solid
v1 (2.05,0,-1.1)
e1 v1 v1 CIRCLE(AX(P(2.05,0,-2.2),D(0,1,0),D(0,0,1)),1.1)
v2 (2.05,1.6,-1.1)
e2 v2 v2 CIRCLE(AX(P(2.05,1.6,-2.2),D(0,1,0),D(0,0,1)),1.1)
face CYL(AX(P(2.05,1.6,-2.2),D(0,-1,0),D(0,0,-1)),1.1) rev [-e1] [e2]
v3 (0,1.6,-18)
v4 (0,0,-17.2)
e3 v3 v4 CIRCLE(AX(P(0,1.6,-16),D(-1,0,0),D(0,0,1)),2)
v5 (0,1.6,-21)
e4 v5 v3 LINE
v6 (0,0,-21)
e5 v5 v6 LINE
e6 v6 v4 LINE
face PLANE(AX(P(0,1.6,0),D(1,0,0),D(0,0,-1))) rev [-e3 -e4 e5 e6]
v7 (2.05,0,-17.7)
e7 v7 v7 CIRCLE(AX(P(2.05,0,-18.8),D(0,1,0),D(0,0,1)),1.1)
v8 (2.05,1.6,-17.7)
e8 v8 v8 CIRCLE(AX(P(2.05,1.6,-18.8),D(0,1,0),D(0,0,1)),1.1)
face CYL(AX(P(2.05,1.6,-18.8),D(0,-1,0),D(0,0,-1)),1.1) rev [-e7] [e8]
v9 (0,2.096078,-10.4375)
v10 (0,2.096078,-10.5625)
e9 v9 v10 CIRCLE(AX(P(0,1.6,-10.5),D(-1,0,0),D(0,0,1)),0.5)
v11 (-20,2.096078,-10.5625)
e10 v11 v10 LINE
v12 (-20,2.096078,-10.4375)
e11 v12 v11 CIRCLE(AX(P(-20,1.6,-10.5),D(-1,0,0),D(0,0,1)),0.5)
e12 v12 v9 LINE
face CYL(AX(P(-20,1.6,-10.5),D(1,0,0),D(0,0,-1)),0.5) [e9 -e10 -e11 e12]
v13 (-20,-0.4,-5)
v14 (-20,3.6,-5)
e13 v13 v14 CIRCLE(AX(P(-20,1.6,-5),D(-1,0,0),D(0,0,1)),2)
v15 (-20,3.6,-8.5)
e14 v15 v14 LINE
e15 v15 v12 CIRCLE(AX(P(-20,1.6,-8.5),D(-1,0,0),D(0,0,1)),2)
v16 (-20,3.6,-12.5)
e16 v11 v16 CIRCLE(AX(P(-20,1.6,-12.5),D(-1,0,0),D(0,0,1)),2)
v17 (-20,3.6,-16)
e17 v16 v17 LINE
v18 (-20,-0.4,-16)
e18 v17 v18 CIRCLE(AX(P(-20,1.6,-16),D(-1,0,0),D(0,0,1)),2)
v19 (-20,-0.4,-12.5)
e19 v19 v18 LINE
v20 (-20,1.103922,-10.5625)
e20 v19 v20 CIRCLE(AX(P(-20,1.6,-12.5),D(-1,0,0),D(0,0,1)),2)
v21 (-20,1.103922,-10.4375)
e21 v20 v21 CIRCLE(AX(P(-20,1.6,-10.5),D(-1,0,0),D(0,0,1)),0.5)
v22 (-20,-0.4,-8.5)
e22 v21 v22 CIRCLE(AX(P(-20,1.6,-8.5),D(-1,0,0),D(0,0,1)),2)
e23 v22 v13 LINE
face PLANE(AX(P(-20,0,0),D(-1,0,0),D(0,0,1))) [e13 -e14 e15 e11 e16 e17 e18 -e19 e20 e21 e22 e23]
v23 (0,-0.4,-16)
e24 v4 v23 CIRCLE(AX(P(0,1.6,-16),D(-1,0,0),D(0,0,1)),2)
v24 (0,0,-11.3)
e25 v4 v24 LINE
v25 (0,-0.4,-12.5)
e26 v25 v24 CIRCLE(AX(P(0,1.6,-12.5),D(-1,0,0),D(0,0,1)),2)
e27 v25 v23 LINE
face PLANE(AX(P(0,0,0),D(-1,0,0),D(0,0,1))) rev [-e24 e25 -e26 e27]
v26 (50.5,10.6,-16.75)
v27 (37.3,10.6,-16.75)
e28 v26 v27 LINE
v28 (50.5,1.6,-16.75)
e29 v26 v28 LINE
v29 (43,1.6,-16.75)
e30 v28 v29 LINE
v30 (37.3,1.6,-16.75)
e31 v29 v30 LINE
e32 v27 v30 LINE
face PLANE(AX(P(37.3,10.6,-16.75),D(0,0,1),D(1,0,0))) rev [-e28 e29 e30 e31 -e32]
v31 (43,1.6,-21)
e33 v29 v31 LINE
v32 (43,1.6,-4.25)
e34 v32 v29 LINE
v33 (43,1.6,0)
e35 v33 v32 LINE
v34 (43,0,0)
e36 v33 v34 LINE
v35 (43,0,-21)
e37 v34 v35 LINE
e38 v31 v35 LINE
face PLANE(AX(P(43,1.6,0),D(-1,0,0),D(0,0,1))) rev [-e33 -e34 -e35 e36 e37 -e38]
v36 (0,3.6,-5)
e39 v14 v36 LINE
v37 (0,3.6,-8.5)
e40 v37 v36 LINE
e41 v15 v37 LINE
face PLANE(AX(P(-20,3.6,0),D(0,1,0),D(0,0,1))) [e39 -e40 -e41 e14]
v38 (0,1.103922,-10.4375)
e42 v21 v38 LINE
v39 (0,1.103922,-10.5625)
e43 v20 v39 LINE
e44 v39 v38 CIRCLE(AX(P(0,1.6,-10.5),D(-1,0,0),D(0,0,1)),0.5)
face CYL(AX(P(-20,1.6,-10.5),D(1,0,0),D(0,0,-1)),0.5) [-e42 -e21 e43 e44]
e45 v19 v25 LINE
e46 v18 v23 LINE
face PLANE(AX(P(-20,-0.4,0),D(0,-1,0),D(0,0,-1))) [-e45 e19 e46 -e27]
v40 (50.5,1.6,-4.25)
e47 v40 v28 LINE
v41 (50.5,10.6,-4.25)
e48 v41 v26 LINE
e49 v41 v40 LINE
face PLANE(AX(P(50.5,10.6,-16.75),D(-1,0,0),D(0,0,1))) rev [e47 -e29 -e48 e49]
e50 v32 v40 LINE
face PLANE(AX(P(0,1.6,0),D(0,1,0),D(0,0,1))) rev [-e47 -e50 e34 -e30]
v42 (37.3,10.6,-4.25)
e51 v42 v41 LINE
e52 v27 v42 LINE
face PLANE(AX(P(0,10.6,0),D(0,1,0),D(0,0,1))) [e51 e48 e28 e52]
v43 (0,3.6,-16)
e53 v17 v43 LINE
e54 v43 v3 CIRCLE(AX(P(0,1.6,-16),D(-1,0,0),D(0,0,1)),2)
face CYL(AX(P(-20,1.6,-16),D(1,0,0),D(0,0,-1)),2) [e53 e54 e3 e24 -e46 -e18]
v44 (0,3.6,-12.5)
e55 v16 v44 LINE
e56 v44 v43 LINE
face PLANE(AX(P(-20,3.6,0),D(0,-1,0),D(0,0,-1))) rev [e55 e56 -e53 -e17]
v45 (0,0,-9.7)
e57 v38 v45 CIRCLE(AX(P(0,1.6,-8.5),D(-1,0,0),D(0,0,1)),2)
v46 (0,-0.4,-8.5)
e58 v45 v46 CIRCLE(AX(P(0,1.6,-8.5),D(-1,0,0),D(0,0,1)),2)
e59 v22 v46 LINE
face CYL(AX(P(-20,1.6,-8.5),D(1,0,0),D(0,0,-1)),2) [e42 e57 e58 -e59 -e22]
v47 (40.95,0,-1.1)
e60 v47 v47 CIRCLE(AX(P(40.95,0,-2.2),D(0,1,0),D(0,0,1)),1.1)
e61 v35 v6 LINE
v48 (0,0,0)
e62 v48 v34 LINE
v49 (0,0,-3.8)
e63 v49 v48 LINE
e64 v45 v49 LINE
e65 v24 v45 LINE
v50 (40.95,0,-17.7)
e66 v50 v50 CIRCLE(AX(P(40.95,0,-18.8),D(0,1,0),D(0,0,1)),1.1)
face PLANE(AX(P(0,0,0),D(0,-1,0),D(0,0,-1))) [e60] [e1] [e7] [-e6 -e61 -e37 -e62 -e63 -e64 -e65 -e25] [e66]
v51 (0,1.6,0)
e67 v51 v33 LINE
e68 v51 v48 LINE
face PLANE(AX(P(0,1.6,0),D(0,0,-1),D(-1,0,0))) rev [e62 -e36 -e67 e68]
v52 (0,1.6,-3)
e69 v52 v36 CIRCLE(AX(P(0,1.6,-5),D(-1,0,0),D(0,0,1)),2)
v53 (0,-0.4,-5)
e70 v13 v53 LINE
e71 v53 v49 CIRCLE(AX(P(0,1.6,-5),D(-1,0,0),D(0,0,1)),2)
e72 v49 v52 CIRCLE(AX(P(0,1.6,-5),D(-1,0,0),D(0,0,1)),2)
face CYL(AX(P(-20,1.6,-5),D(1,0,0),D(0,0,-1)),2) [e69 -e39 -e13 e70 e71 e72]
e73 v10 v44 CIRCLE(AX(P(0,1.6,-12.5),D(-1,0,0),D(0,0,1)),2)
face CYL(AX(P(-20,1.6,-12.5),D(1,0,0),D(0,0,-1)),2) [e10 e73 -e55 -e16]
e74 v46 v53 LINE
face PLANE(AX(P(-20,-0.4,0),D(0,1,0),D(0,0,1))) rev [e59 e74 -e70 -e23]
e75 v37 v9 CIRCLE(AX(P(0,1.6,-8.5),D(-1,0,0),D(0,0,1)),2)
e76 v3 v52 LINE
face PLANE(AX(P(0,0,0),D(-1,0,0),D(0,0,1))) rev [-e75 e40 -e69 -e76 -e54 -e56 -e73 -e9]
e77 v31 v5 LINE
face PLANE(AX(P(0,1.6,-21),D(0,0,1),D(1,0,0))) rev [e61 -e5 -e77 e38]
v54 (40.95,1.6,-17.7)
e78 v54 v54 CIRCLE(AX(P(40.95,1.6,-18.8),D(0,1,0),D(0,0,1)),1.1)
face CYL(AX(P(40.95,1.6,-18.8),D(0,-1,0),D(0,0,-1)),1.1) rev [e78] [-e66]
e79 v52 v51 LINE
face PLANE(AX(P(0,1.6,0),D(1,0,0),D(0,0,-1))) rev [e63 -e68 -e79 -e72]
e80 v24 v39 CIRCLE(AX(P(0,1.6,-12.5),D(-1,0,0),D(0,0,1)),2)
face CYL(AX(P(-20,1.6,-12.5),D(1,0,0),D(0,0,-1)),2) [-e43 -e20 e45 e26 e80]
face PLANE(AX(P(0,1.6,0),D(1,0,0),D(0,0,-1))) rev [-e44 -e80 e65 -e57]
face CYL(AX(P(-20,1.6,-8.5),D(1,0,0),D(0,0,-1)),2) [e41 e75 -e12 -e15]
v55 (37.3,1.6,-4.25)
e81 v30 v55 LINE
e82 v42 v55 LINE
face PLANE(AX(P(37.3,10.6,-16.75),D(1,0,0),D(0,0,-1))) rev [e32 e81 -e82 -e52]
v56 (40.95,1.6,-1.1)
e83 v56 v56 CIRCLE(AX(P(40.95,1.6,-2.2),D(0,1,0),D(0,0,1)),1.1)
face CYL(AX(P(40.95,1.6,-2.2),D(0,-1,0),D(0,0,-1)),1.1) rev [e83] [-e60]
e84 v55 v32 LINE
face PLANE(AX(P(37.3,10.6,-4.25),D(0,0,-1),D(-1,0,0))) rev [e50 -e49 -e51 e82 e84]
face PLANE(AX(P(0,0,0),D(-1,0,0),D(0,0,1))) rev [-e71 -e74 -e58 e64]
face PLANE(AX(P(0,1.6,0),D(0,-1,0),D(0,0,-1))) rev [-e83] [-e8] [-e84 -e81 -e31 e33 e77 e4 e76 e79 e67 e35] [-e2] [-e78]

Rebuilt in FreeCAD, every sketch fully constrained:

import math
import FreeCAD as App
import Part
import Sketcher
from FreeCAD import Vector

doc = App.newDocument("Part")
body = doc.addObject("PartDesign::Body", "Body")

sketch1 = doc.addObject("Sketcher::SketchObject", "Sketch")
body.addObject(sketch1)
sketch1.AttachmentSupport = (doc.XZ_Plane, [""])
sketch1.MapMode = "FlatFace"
sketch1.addGeometry([
    Part.LineSegment(Vector(0, -21, 0), Vector(0, 0, 0)),
    Part.LineSegment(Vector(0, 0, 0), Vector(43, 0, 0)),
    Part.LineSegment(Vector(43, 0, 0), Vector(43, -21, 0)),
    Part.LineSegment(Vector(43, -21, 0), Vector(0, -21, 0)),
    Part.Circle(Vector(2, -2.2, 0), Vector(0, 0, 1), 1.1),
    Part.Circle(Vector(41, -2.2, 0), Vector(0, 0, 1), 1.1),
    Part.Circle(Vector(2, -18.8, 0), Vector(0, 0, 1), 1.1),
    Part.Circle(Vector(41, -18.8, 0), Vector(0, 0, 1), 1.1),
], False)
sketch1.addConstraint([
    Sketcher.Constraint("Coincident", 0, 2, 1, 1),
    Sketcher.Constraint("Coincident", 1, 2, 2, 1),
    Sketcher.Constraint("Coincident", 2, 2, 3, 1),
    Sketcher.Constraint("Coincident", 3, 2, 0, 1),
    Sketcher.Constraint("Vertical", 0),
    Sketcher.Constraint("Horizontal", 1),
    Sketcher.Constraint("Vertical", 2),
    Sketcher.Constraint("Horizontal", 3),
    Sketcher.Constraint("Coincident", 0, 2, -1, 1),
    Sketcher.Constraint("Equal", 4, 5),
    Sketcher.Constraint("Equal", 5, 6),
    Sketcher.Constraint("Equal", 6, 7),
    Sketcher.Constraint("Horizontal", 4, 3, 5, 3),
    Sketcher.Constraint("Horizontal", 6, 3, 7, 3),
    Sketcher.Constraint("Vertical", 4, 3, 6, 3),
    Sketcher.Constraint("Vertical", 5, 3, 7, 3),
    Sketcher.Constraint("Diameter", 4, 2.2),
    Sketcher.Constraint("DistanceX", 1, 1, 1, 2, 43.0),
    Sketcher.Constraint("DistanceY", 0, 1, 0, 2, 21.0),
    Sketcher.Constraint("DistanceY", 4, 3, -1, 1, 2.2),
    Sketcher.Constraint("DistanceY", 6, 3, -1, 1, 18.8),
    Sketcher.Constraint("DistanceX", 4, 3, 5, 3, 38.9),
    Sketcher.Constraint("DistanceX", -1, 1, 4, 3, 2.05),
])
pad1 = doc.addObject("PartDesign::Pad", "Pad")
body.addObject(pad1)
pad1.Profile = sketch1
pad1.Length = 1.6
pad1.Reversed = True

sketch2 = doc.addObject("Sketcher::SketchObject", "Sketch001")
body.addObject(sketch2)
sketch2.AttachmentSupport = (doc.YZ_Plane, [""])
sketch2.MapMode = "FlatFace"
sketch2.addGeometry([
    Part.ArcOfCircle(Part.Circle(Vector(1.6, -10.5, 0), Vector(0, 0, 1), 0.5), math.radians(172.82), math.radians(187.18)),
    Part.ArcOfCircle(Part.Circle(Vector(1.6, -8.5, 0), Vector(0, 0, 1), 2), math.radians(-143), math.radians(-104)),
    Part.ArcOfCircle(Part.Circle(Vector(1.6, -8.5, 0), Vector(0, 0, 1), 2), math.radians(-180), math.radians(-143)),
    Part.LineSegment(Vector(-0.4, -8.5, 0), Vector(-0.4, -5, 0)),
    Part.ArcOfCircle(Part.Circle(Vector(1.6, -5, 0), Vector(0, 0, 1), 2), math.radians(143), math.radians(180)),
    Part.ArcOfCircle(Part.Circle(Vector(1.6, -5, 0), Vector(0, 0, 1), 2), math.radians(90), math.radians(143)),
    Part.ArcOfCircle(Part.Circle(Vector(1.6, -5, 0), Vector(0, 0, 1), 2), math.radians(0), math.radians(90)),
    Part.LineSegment(Vector(3.6, -5, 0), Vector(3.6, -8.5, 0)),
    Part.ArcOfCircle(Part.Circle(Vector(1.6, -8.5, 0), Vector(0, 0, 1), 2), math.radians(-76), math.radians(0)),
    Part.ArcOfCircle(Part.Circle(Vector(1.6, -10.5, 0), Vector(0, 0, 1), 0.5), math.radians(-7.18), math.radians(7.18)),
    Part.ArcOfCircle(Part.Circle(Vector(1.6, -12.5, 0), Vector(0, 0, 1), 2), math.radians(0), math.radians(76)),
    Part.LineSegment(Vector(3.6, -12.5, 0), Vector(3.6, -16, 0)),
    Part.ArcOfCircle(Part.Circle(Vector(1.6, -16, 0), Vector(0, 0, 1), 2), math.radians(-90), math.radians(0)),
    Part.ArcOfCircle(Part.Circle(Vector(1.6, -16, 0), Vector(0, 0, 1), 2), math.radians(-143), math.radians(-90)),
    Part.ArcOfCircle(Part.Circle(Vector(1.6, -16, 0), Vector(0, 0, 1), 2), math.radians(-180), math.radians(-143)),
    Part.LineSegment(Vector(-0.4, -16, 0), Vector(-0.4, -12.5, 0)),
    Part.ArcOfCircle(Part.Circle(Vector(1.6, -12.5, 0), Vector(0, 0, 1), 2), math.radians(143), math.radians(180)),
    Part.ArcOfCircle(Part.Circle(Vector(1.6, -12.5, 0), Vector(0, 0, 1), 2), math.radians(104), math.radians(143)),
], False)
sketch2.addConstraint([
    Sketcher.Constraint("Coincident", 0, 1, 1, 2),
    Sketcher.Constraint("Tangent", 1, 1, 2, 2),
    Sketcher.Constraint("Tangent", 2, 1, 3, 1),
    Sketcher.Constraint("Tangent", 3, 2, 4, 2),
    Sketcher.Constraint("Tangent", 4, 1, 5, 2),
    Sketcher.Constraint("Tangent", 5, 1, 6, 2),
    Sketcher.Constraint("Tangent", 6, 1, 7, 1),
    Sketcher.Constraint("Tangent", 7, 2, 8, 2),
    Sketcher.Constraint("Coincident", 8, 1, 9, 2),
    Sketcher.Constraint("Coincident", 9, 1, 10, 2),
    Sketcher.Constraint("Tangent", 10, 1, 11, 1),
    Sketcher.Constraint("Tangent", 11, 2, 12, 2),
    Sketcher.Constraint("Tangent", 12, 1, 13, 2),
    Sketcher.Constraint("Tangent", 13, 1, 14, 2),
    Sketcher.Constraint("Tangent", 14, 1, 15, 1),
    Sketcher.Constraint("Tangent", 15, 2, 16, 2),
    Sketcher.Constraint("Tangent", 16, 1, 17, 2),
    Sketcher.Constraint("Coincident", 17, 1, 0, 2),
    Sketcher.Constraint("Vertical", 3),
    Sketcher.Constraint("Vertical", 7),
    Sketcher.Constraint("Vertical", 11),
    Sketcher.Constraint("Vertical", 15),
    Sketcher.Constraint("Coincident", 6, 3, 4, 3),
    Sketcher.Constraint("Coincident", 8, 3, 1, 3),
    Sketcher.Constraint("Coincident", 9, 3, 0, 3),
    Sketcher.Constraint("Coincident", 14, 3, 12, 3),
    Sketcher.Constraint("Coincident", 16, 3, 10, 3),
    Sketcher.Constraint("Equal", 1, 2),
    Sketcher.Constraint("Equal", 2, 4),
    Sketcher.Constraint("Equal", 0, 9),
    Sketcher.Constraint("Equal", 8, 10),
    Sketcher.Constraint("Equal", 10, 12),
    Sketcher.Constraint("Equal", 16, 17),
    Sketcher.Constraint("PointOnObject", 1, 1, -2),
    Sketcher.Constraint("PointOnObject", 4, 1, -2),
    Sketcher.Constraint("PointOnObject", 13, 1, -2),
    Sketcher.Constraint("PointOnObject", 16, 1, -2),
    Sketcher.Constraint("Horizontal", 0, 1, 8, 1),
    Sketcher.Constraint("Horizontal", 9, 1, 17, 1),
    Sketcher.Constraint("Vertical", 17, 3, 5, 1),
    Sketcher.Constraint("Vertical", 8, 1, 9, 1),
    Sketcher.Constraint("Vertical", 5, 1, 12, 1),
    Sketcher.Constraint("Equal", 7, 11),
    Sketcher.Constraint("Radius", 1, 2.0),
    Sketcher.Constraint("Radius", 0, 0.5),
    Sketcher.Constraint("DistanceY", 3, 1, 3, 2, 3.5),
    Sketcher.Constraint("DistanceY", 4, 3, -1, 1, 5.0),
    Sketcher.Constraint("DistanceY", 12, 3, -1, 1, 16.0),
    Sketcher.Constraint("DistanceX", -1, 1, 0, 3, 1.6),
])
pad2 = doc.addObject("PartDesign::Pad", "Pad001")
body.addObject(pad2)
pad2.Profile = sketch2
pad2.Length = 20
pad2.Reversed = True

sketch3 = doc.addObject("Sketcher::SketchObject", "Sketch002")
body.addObject(sketch3)
sketch3.AttachmentSupport = (doc.XZ_Plane, [""])
sketch3.MapMode = "FlatFace"
sketch3.AttachmentOffset = App.Placement(Vector(0, 0, -1.6), App.Rotation())
sketch3.addGeometry([
    Part.LineSegment(Vector(37, -17, 0), Vector(37, -4, 0)),
    Part.LineSegment(Vector(37, -4, 0), Vector(50, -4, 0)),
    Part.LineSegment(Vector(50, -4, 0), Vector(50, -17, 0)),
    Part.LineSegment(Vector(50, -17, 0), Vector(37, -17, 0)),
], False)
sketch3.addConstraint([
    Sketcher.Constraint("Coincident", 0, 2, 1, 1),
    Sketcher.Constraint("Coincident", 1, 2, 2, 1),
    Sketcher.Constraint("Coincident", 2, 2, 3, 1),
    Sketcher.Constraint("Coincident", 3, 2, 0, 1),
    Sketcher.Constraint("Vertical", 0),
    Sketcher.Constraint("Horizontal", 1),
    Sketcher.Constraint("Vertical", 2),
    Sketcher.Constraint("Horizontal", 3),
    Sketcher.Constraint("DistanceX", 1, 1, 1, 2, 13.2),
    Sketcher.Constraint("DistanceY", 0, 1, 0, 2, 12.5),
    Sketcher.Constraint("DistanceX", -1, 1, 0, 2, 37.3),
    Sketcher.Constraint("DistanceY", 0, 2, -1, 1, 4.25),
])
pad3 = doc.addObject("PartDesign::Pad", "Pad002")
body.addObject(pad3)
pad3.Profile = sketch3
pad3.Length = 9
pad3.Reversed = True

doc.recompute()
